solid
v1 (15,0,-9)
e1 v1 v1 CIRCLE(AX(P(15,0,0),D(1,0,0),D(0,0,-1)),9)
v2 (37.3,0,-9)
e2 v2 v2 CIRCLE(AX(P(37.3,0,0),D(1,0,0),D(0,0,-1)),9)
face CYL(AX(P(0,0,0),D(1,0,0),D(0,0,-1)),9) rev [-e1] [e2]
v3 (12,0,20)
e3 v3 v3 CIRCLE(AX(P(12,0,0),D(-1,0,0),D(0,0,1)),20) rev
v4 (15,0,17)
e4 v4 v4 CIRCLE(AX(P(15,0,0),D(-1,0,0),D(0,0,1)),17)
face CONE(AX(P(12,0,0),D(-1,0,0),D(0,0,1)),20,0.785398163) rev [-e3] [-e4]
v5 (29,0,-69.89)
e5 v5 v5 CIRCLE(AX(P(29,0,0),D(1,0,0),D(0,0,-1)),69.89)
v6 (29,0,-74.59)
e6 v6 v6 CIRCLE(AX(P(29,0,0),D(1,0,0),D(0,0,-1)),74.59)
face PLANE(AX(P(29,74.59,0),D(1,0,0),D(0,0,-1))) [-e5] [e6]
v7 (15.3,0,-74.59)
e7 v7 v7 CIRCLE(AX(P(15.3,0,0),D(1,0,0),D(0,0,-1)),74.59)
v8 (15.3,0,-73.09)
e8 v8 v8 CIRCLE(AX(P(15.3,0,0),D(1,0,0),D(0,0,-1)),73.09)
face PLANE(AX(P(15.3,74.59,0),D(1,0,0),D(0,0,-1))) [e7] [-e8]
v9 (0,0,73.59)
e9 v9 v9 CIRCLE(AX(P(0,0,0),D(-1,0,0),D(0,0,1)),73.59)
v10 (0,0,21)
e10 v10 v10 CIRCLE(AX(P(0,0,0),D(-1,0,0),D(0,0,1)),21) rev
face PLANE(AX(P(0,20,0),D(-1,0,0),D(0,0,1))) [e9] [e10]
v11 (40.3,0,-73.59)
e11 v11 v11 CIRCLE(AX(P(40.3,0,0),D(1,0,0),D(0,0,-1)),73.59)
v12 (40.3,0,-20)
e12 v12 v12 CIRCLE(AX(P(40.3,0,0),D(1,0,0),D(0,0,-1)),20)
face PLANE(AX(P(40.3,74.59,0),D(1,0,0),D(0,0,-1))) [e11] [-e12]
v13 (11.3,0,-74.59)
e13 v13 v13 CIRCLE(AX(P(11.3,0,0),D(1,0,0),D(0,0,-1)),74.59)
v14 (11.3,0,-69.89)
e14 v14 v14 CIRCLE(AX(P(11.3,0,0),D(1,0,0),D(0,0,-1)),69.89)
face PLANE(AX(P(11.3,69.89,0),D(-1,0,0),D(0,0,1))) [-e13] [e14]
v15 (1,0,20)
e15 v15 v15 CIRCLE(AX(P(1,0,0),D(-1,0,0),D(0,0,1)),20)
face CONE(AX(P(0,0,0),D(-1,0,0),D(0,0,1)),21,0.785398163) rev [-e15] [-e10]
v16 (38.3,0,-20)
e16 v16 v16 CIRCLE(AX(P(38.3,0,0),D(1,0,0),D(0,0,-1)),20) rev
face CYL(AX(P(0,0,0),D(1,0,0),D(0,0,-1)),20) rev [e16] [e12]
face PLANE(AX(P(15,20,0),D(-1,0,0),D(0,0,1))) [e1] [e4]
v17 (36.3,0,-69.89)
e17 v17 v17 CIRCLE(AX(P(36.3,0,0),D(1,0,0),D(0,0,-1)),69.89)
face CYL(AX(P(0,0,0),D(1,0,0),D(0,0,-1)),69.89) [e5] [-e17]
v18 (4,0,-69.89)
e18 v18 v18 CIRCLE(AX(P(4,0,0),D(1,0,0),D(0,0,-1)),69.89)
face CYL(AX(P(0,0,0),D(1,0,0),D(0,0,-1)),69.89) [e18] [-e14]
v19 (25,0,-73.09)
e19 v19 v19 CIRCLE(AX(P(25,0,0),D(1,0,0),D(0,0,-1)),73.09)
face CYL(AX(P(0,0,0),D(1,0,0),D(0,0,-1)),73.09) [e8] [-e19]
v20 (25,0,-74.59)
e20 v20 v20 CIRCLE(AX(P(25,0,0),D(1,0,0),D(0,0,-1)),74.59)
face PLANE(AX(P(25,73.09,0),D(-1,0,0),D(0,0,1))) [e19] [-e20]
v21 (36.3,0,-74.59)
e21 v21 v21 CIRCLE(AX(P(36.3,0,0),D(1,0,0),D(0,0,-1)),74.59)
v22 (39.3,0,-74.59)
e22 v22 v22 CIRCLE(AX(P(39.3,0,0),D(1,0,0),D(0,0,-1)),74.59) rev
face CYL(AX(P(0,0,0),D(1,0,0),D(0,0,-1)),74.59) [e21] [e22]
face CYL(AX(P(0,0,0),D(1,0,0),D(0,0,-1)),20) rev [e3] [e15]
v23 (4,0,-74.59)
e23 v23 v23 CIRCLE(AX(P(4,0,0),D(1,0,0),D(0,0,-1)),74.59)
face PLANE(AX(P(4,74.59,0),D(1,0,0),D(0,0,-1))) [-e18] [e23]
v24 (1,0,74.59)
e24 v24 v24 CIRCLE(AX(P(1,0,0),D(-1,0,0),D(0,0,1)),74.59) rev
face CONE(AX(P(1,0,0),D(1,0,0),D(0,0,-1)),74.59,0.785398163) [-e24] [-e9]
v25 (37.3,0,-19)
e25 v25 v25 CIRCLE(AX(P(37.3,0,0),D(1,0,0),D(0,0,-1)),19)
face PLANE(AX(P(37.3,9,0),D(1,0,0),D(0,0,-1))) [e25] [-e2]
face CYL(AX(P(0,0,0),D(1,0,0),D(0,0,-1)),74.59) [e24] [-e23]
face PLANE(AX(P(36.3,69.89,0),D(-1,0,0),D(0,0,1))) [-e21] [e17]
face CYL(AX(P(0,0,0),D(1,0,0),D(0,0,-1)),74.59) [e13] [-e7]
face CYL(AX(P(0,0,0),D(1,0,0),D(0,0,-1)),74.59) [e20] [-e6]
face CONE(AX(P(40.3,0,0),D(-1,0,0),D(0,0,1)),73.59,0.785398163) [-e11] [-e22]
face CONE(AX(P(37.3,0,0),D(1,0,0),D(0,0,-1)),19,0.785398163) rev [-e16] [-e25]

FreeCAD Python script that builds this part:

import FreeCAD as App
import Part
import Sketcher


def edges_at(feature, points):
    """Names of the edges that pass closest to the given points."""
    edges = feature.Shape.Edges
    near = lambda p: min(range(len(edges)), key=lambda i: edges[i].distToShape(Part.Vertex(*p))[0])
    return sorted({f"Edge{near(p) + 1}" for p in points})


def add_polygon(sketch, points):
    """Adds a closed chain of lines whose ends are joined by coincident constraints."""
    first, n = sketch.GeometryCount, len(points)
    for a, b in zip(points, points[1:] + points[:1]):
        sketch.addGeometry(Part.LineSegment(App.Vector(*a, 0), App.Vector(*b, 0)), False)
    for i in range(n):
        sketch.addConstraint(Sketcher.Constraint("Coincident", first + i, 2, first + (i + 1) % n, 1))

doc = App.newDocument("Part")
body = doc.addObject("PartDesign::Body", "Body")

# Sketch on XY plane
sketch1 = body.newObject("Sketcher::SketchObject", "Sketch")
sketch1.AttachmentSupport = (doc.getObject("XY_Plane"), [""])
sketch1.MapMode = "FlatFace"
add_polygon(sketch1, [(0, 74.6), (0, 20), (15, 20), (15, 9), (37.3, 9), (37.3, 20), (40.3, 20), (40.3, 74.6), (36.3, 74.6), (36.3, 69.9), (29, 69.9), (29, 74.6), (25, 74.6), (25, 73.1), (15.3, 73.1), (15.3, 74.6), (11.3, 74.6), (11.3, 69.9), (4, 69.9), (4, 74.6)])  # lines 0-19
sketch1.addConstraint(Sketcher.Constraint("Vertical", 0))
sketch1.addConstraint(Sketcher.Constraint("Horizontal", 1))
sketch1.addConstraint(Sketcher.Constraint("Vertical", 2))
sketch1.addConstraint(Sketcher.Constraint("Horizontal", 3))
sketch1.addConstraint(Sketcher.Constraint("Vertical", 4))
sketch1.addConstraint(Sketcher.Constraint("Horizontal", 5))
sketch1.addConstraint(Sketcher.Constraint("Vertical", 6))
sketch1.addConstraint(Sketcher.Constraint("Horizontal", 7))
sketch1.addConstraint(Sketcher.Constraint("Vertical", 8))
sketch1.addConstraint(Sketcher.Constraint("Horizontal", 9))
sketch1.addConstraint(Sketcher.Constraint("Vertical", 10))
sketch1.addConstraint(Sketcher.Constraint("Horizontal", 11))
sketch1.addConstraint(Sketcher.Constraint("Vertical", 12))
sketch1.addConstraint(Sketcher.Constraint("Horizontal", 13))
sketch1.addConstraint(Sketcher.Constraint("Vertical", 14))
sketch1.addConstraint(Sketcher.Constraint("Horizontal", 15))
sketch1.addConstraint(Sketcher.Constraint("Vertical", 16))
sketch1.addConstraint(Sketcher.Constraint("Horizontal", 17))
sketch1.addConstraint(Sketcher.Constraint("Vertical", 18))
sketch1.addConstraint(Sketcher.Constraint("Horizontal", 19))
sketch1.addConstraint(Sketcher.Constraint("PointOnObject", 0, 2, -2))
sketch1.addConstraint(Sketcher.Constraint("Horizontal", 1, 2, 4, 2))
sketch1.addConstraint(Sketcher.Constraint("Horizontal", 7, 2, 10, 2))
sketch1.addConstraint(Sketcher.Constraint("Horizontal", 11, 2, 14, 2))
sketch1.addConstraint(Sketcher.Constraint("Horizontal", 9, 2, 16, 2))
sketch1.addConstraint(Sketcher.Constraint("Horizontal", 15, 2, 18, 2))
sketch1.addConstraint(Sketcher.Constraint("Equal", 7, 11))
sketch1.addConstraint(Sketcher.Constraint("Equal", 11, 15))
sketch1.addConstraint(Sketcher.Constraint("Equal", 9, 17))
sketch1.addConstraint(Sketcher.Constraint("Equal", 15, 19))
sketch1.addConstraint(Sketcher.Constraint("DistanceX", 1, 1, 1, 2, 15.0))
sketch1.addConstraint(Sketcher.Constraint("DistanceX", 5, 1, 5, 2, 3.0))
sketch1.addConstraint(Sketcher.Constraint("DistanceX", 7, 2, 7, 1, 4.0))
sketch1.addConstraint(Sketcher.Constraint("DistanceY", 2, 2, 2, 1, 11.0))
sketch1.addConstraint(Sketcher.Constraint("DistanceX", 3, 1, 3, 2, 22.3))
sketch1.addConstraint(Sketcher.Constraint("DistanceX", 9, 2, 9, 1, 7.3))
sketch1.addConstraint(Sketcher.Constraint("DistanceY", 8, 2, 8, 1, 4.7))
sketch1.addConstraint(Sketcher.Constraint("DistanceY", 12, 2, 12, 1, 1.5))
sketch1.addConstraint(Sketcher.Constraint("DistanceY", -1, 1, 0, 2, 20.0))
sketch1.addConstraint(Sketcher.Constraint("DistanceY", 0, 2, 0, 1, 54.59))
revolution = body.newObject("PartDesign::Revolution", "Revolution")
revolution.Profile = sketch1
revolution.ReferenceAxis = (sketch1, ["H_Axis"])
revolution.Angle = 360
doc.recompute()

chamfer = body.newObject("PartDesign::Chamfer", "Chamfer")
chamfer.Base = (revolution, edges_at(revolution, [(40.3, 0, 74.59), (0, 0, 74.59)]))
chamfer.Size = 1
doc.recompute()

chamfer2 = body.newObject("PartDesign::Chamfer", "Chamfer001")
chamfer2.Base = (chamfer, edges_at(chamfer, [(15, 0, 20)]))
chamfer2.Size = 3
doc.recompute()

chamfer3 = body.newObject("PartDesign::Chamfer", "Chamfer002")
chamfer3.Base = (chamfer2, edges_at(chamfer2, [(37.3, 0, 20), (0, 0, 20)]))
chamfer3.Size = 1

doc.recompute()
